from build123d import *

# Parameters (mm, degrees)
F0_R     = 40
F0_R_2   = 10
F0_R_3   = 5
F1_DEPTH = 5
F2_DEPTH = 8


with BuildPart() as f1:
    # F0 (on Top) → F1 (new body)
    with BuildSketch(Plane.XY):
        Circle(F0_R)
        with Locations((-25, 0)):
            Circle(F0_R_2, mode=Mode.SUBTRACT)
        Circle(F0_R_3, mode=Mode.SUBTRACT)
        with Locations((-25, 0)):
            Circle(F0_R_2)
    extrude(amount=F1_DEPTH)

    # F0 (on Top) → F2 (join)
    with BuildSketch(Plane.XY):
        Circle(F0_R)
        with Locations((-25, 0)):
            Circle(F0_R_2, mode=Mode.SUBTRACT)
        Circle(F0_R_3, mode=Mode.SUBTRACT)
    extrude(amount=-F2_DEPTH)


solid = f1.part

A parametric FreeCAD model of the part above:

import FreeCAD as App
import Part
import Sketcher

V = App.Vector
Q = App.Units.Quantity

doc = App.newDocument("Part")
body = doc.addObject("PartDesign::Body", "Body")

# Sketch on XY plane
sketch1 = body.newObject("Sketcher::SketchObject", "Sketch")
sketch1.AttachmentSupport = (doc.getObject("XY_Plane"), [""])
sketch1.MapMode = "FlatFace"
sketch1.addGeometry([
    Part.Circle(V(0, 0, 0), V(0, 0, 1), 40),
    Part.Circle(V(0, 0, 0), V(0, 0, 1), 5),
], False)
sketch1.addConstraint([
    Sketcher.Constraint("Coincident", 0, 3, -1, 1),
    Sketcher.Constraint("Coincident", 1, 3, -1, 1),
    Sketcher.Constraint("Diameter", 0, Q("80 mm")),
    Sketcher.Constraint("Diameter", 1, Q("10 mm")),
])
pad1 = body.newObject("PartDesign::Pad", "Pad")
pad1.Profile = sketch1
pad1.Length = 5

# Sketch on XY plane
sketch2 = body.newObject("Sketcher::SketchObject", "Sketch001")
sketch2.AttachmentSupport = (doc.getObject("XY_Plane"), [""])
sketch2.MapMode = "FlatFace"
sketch2.addGeometry([
    Part.Circle(V(0, 0, 0), V(0, 0, 1), 40),
    Part.Circle(V(-25, 0, 0), V(0, 0, 1), 10),
    Part.Circle(V(0, 0, 0), V(0, 0, 1), 5),
], False)
sketch2.addConstraint([
    Sketcher.Constraint("Coincident", 0, 3, -1, 1),
    Sketcher.Constraint("Coincident", 2, 3, -1, 1),
    Sketcher.Constraint("PointOnObject", 1, 3, -1),
    Sketcher.Constraint("Diameter", 0, Q("80 mm")),
    Sketcher.Constraint("Diameter", 1, Q("20 mm")),
    Sketcher.Constraint("Diameter", 2, Q("10 mm")),
    Sketcher.Constraint("DistanceX", 1, 3, -1, 1, Q("25 mm")),
])
pad2 = body.newObject("PartDesign::Pad", "Pad001")
pad2.Profile = sketch2
pad2.Length = 8
pad2.Reversed = True

doc.recompute()
